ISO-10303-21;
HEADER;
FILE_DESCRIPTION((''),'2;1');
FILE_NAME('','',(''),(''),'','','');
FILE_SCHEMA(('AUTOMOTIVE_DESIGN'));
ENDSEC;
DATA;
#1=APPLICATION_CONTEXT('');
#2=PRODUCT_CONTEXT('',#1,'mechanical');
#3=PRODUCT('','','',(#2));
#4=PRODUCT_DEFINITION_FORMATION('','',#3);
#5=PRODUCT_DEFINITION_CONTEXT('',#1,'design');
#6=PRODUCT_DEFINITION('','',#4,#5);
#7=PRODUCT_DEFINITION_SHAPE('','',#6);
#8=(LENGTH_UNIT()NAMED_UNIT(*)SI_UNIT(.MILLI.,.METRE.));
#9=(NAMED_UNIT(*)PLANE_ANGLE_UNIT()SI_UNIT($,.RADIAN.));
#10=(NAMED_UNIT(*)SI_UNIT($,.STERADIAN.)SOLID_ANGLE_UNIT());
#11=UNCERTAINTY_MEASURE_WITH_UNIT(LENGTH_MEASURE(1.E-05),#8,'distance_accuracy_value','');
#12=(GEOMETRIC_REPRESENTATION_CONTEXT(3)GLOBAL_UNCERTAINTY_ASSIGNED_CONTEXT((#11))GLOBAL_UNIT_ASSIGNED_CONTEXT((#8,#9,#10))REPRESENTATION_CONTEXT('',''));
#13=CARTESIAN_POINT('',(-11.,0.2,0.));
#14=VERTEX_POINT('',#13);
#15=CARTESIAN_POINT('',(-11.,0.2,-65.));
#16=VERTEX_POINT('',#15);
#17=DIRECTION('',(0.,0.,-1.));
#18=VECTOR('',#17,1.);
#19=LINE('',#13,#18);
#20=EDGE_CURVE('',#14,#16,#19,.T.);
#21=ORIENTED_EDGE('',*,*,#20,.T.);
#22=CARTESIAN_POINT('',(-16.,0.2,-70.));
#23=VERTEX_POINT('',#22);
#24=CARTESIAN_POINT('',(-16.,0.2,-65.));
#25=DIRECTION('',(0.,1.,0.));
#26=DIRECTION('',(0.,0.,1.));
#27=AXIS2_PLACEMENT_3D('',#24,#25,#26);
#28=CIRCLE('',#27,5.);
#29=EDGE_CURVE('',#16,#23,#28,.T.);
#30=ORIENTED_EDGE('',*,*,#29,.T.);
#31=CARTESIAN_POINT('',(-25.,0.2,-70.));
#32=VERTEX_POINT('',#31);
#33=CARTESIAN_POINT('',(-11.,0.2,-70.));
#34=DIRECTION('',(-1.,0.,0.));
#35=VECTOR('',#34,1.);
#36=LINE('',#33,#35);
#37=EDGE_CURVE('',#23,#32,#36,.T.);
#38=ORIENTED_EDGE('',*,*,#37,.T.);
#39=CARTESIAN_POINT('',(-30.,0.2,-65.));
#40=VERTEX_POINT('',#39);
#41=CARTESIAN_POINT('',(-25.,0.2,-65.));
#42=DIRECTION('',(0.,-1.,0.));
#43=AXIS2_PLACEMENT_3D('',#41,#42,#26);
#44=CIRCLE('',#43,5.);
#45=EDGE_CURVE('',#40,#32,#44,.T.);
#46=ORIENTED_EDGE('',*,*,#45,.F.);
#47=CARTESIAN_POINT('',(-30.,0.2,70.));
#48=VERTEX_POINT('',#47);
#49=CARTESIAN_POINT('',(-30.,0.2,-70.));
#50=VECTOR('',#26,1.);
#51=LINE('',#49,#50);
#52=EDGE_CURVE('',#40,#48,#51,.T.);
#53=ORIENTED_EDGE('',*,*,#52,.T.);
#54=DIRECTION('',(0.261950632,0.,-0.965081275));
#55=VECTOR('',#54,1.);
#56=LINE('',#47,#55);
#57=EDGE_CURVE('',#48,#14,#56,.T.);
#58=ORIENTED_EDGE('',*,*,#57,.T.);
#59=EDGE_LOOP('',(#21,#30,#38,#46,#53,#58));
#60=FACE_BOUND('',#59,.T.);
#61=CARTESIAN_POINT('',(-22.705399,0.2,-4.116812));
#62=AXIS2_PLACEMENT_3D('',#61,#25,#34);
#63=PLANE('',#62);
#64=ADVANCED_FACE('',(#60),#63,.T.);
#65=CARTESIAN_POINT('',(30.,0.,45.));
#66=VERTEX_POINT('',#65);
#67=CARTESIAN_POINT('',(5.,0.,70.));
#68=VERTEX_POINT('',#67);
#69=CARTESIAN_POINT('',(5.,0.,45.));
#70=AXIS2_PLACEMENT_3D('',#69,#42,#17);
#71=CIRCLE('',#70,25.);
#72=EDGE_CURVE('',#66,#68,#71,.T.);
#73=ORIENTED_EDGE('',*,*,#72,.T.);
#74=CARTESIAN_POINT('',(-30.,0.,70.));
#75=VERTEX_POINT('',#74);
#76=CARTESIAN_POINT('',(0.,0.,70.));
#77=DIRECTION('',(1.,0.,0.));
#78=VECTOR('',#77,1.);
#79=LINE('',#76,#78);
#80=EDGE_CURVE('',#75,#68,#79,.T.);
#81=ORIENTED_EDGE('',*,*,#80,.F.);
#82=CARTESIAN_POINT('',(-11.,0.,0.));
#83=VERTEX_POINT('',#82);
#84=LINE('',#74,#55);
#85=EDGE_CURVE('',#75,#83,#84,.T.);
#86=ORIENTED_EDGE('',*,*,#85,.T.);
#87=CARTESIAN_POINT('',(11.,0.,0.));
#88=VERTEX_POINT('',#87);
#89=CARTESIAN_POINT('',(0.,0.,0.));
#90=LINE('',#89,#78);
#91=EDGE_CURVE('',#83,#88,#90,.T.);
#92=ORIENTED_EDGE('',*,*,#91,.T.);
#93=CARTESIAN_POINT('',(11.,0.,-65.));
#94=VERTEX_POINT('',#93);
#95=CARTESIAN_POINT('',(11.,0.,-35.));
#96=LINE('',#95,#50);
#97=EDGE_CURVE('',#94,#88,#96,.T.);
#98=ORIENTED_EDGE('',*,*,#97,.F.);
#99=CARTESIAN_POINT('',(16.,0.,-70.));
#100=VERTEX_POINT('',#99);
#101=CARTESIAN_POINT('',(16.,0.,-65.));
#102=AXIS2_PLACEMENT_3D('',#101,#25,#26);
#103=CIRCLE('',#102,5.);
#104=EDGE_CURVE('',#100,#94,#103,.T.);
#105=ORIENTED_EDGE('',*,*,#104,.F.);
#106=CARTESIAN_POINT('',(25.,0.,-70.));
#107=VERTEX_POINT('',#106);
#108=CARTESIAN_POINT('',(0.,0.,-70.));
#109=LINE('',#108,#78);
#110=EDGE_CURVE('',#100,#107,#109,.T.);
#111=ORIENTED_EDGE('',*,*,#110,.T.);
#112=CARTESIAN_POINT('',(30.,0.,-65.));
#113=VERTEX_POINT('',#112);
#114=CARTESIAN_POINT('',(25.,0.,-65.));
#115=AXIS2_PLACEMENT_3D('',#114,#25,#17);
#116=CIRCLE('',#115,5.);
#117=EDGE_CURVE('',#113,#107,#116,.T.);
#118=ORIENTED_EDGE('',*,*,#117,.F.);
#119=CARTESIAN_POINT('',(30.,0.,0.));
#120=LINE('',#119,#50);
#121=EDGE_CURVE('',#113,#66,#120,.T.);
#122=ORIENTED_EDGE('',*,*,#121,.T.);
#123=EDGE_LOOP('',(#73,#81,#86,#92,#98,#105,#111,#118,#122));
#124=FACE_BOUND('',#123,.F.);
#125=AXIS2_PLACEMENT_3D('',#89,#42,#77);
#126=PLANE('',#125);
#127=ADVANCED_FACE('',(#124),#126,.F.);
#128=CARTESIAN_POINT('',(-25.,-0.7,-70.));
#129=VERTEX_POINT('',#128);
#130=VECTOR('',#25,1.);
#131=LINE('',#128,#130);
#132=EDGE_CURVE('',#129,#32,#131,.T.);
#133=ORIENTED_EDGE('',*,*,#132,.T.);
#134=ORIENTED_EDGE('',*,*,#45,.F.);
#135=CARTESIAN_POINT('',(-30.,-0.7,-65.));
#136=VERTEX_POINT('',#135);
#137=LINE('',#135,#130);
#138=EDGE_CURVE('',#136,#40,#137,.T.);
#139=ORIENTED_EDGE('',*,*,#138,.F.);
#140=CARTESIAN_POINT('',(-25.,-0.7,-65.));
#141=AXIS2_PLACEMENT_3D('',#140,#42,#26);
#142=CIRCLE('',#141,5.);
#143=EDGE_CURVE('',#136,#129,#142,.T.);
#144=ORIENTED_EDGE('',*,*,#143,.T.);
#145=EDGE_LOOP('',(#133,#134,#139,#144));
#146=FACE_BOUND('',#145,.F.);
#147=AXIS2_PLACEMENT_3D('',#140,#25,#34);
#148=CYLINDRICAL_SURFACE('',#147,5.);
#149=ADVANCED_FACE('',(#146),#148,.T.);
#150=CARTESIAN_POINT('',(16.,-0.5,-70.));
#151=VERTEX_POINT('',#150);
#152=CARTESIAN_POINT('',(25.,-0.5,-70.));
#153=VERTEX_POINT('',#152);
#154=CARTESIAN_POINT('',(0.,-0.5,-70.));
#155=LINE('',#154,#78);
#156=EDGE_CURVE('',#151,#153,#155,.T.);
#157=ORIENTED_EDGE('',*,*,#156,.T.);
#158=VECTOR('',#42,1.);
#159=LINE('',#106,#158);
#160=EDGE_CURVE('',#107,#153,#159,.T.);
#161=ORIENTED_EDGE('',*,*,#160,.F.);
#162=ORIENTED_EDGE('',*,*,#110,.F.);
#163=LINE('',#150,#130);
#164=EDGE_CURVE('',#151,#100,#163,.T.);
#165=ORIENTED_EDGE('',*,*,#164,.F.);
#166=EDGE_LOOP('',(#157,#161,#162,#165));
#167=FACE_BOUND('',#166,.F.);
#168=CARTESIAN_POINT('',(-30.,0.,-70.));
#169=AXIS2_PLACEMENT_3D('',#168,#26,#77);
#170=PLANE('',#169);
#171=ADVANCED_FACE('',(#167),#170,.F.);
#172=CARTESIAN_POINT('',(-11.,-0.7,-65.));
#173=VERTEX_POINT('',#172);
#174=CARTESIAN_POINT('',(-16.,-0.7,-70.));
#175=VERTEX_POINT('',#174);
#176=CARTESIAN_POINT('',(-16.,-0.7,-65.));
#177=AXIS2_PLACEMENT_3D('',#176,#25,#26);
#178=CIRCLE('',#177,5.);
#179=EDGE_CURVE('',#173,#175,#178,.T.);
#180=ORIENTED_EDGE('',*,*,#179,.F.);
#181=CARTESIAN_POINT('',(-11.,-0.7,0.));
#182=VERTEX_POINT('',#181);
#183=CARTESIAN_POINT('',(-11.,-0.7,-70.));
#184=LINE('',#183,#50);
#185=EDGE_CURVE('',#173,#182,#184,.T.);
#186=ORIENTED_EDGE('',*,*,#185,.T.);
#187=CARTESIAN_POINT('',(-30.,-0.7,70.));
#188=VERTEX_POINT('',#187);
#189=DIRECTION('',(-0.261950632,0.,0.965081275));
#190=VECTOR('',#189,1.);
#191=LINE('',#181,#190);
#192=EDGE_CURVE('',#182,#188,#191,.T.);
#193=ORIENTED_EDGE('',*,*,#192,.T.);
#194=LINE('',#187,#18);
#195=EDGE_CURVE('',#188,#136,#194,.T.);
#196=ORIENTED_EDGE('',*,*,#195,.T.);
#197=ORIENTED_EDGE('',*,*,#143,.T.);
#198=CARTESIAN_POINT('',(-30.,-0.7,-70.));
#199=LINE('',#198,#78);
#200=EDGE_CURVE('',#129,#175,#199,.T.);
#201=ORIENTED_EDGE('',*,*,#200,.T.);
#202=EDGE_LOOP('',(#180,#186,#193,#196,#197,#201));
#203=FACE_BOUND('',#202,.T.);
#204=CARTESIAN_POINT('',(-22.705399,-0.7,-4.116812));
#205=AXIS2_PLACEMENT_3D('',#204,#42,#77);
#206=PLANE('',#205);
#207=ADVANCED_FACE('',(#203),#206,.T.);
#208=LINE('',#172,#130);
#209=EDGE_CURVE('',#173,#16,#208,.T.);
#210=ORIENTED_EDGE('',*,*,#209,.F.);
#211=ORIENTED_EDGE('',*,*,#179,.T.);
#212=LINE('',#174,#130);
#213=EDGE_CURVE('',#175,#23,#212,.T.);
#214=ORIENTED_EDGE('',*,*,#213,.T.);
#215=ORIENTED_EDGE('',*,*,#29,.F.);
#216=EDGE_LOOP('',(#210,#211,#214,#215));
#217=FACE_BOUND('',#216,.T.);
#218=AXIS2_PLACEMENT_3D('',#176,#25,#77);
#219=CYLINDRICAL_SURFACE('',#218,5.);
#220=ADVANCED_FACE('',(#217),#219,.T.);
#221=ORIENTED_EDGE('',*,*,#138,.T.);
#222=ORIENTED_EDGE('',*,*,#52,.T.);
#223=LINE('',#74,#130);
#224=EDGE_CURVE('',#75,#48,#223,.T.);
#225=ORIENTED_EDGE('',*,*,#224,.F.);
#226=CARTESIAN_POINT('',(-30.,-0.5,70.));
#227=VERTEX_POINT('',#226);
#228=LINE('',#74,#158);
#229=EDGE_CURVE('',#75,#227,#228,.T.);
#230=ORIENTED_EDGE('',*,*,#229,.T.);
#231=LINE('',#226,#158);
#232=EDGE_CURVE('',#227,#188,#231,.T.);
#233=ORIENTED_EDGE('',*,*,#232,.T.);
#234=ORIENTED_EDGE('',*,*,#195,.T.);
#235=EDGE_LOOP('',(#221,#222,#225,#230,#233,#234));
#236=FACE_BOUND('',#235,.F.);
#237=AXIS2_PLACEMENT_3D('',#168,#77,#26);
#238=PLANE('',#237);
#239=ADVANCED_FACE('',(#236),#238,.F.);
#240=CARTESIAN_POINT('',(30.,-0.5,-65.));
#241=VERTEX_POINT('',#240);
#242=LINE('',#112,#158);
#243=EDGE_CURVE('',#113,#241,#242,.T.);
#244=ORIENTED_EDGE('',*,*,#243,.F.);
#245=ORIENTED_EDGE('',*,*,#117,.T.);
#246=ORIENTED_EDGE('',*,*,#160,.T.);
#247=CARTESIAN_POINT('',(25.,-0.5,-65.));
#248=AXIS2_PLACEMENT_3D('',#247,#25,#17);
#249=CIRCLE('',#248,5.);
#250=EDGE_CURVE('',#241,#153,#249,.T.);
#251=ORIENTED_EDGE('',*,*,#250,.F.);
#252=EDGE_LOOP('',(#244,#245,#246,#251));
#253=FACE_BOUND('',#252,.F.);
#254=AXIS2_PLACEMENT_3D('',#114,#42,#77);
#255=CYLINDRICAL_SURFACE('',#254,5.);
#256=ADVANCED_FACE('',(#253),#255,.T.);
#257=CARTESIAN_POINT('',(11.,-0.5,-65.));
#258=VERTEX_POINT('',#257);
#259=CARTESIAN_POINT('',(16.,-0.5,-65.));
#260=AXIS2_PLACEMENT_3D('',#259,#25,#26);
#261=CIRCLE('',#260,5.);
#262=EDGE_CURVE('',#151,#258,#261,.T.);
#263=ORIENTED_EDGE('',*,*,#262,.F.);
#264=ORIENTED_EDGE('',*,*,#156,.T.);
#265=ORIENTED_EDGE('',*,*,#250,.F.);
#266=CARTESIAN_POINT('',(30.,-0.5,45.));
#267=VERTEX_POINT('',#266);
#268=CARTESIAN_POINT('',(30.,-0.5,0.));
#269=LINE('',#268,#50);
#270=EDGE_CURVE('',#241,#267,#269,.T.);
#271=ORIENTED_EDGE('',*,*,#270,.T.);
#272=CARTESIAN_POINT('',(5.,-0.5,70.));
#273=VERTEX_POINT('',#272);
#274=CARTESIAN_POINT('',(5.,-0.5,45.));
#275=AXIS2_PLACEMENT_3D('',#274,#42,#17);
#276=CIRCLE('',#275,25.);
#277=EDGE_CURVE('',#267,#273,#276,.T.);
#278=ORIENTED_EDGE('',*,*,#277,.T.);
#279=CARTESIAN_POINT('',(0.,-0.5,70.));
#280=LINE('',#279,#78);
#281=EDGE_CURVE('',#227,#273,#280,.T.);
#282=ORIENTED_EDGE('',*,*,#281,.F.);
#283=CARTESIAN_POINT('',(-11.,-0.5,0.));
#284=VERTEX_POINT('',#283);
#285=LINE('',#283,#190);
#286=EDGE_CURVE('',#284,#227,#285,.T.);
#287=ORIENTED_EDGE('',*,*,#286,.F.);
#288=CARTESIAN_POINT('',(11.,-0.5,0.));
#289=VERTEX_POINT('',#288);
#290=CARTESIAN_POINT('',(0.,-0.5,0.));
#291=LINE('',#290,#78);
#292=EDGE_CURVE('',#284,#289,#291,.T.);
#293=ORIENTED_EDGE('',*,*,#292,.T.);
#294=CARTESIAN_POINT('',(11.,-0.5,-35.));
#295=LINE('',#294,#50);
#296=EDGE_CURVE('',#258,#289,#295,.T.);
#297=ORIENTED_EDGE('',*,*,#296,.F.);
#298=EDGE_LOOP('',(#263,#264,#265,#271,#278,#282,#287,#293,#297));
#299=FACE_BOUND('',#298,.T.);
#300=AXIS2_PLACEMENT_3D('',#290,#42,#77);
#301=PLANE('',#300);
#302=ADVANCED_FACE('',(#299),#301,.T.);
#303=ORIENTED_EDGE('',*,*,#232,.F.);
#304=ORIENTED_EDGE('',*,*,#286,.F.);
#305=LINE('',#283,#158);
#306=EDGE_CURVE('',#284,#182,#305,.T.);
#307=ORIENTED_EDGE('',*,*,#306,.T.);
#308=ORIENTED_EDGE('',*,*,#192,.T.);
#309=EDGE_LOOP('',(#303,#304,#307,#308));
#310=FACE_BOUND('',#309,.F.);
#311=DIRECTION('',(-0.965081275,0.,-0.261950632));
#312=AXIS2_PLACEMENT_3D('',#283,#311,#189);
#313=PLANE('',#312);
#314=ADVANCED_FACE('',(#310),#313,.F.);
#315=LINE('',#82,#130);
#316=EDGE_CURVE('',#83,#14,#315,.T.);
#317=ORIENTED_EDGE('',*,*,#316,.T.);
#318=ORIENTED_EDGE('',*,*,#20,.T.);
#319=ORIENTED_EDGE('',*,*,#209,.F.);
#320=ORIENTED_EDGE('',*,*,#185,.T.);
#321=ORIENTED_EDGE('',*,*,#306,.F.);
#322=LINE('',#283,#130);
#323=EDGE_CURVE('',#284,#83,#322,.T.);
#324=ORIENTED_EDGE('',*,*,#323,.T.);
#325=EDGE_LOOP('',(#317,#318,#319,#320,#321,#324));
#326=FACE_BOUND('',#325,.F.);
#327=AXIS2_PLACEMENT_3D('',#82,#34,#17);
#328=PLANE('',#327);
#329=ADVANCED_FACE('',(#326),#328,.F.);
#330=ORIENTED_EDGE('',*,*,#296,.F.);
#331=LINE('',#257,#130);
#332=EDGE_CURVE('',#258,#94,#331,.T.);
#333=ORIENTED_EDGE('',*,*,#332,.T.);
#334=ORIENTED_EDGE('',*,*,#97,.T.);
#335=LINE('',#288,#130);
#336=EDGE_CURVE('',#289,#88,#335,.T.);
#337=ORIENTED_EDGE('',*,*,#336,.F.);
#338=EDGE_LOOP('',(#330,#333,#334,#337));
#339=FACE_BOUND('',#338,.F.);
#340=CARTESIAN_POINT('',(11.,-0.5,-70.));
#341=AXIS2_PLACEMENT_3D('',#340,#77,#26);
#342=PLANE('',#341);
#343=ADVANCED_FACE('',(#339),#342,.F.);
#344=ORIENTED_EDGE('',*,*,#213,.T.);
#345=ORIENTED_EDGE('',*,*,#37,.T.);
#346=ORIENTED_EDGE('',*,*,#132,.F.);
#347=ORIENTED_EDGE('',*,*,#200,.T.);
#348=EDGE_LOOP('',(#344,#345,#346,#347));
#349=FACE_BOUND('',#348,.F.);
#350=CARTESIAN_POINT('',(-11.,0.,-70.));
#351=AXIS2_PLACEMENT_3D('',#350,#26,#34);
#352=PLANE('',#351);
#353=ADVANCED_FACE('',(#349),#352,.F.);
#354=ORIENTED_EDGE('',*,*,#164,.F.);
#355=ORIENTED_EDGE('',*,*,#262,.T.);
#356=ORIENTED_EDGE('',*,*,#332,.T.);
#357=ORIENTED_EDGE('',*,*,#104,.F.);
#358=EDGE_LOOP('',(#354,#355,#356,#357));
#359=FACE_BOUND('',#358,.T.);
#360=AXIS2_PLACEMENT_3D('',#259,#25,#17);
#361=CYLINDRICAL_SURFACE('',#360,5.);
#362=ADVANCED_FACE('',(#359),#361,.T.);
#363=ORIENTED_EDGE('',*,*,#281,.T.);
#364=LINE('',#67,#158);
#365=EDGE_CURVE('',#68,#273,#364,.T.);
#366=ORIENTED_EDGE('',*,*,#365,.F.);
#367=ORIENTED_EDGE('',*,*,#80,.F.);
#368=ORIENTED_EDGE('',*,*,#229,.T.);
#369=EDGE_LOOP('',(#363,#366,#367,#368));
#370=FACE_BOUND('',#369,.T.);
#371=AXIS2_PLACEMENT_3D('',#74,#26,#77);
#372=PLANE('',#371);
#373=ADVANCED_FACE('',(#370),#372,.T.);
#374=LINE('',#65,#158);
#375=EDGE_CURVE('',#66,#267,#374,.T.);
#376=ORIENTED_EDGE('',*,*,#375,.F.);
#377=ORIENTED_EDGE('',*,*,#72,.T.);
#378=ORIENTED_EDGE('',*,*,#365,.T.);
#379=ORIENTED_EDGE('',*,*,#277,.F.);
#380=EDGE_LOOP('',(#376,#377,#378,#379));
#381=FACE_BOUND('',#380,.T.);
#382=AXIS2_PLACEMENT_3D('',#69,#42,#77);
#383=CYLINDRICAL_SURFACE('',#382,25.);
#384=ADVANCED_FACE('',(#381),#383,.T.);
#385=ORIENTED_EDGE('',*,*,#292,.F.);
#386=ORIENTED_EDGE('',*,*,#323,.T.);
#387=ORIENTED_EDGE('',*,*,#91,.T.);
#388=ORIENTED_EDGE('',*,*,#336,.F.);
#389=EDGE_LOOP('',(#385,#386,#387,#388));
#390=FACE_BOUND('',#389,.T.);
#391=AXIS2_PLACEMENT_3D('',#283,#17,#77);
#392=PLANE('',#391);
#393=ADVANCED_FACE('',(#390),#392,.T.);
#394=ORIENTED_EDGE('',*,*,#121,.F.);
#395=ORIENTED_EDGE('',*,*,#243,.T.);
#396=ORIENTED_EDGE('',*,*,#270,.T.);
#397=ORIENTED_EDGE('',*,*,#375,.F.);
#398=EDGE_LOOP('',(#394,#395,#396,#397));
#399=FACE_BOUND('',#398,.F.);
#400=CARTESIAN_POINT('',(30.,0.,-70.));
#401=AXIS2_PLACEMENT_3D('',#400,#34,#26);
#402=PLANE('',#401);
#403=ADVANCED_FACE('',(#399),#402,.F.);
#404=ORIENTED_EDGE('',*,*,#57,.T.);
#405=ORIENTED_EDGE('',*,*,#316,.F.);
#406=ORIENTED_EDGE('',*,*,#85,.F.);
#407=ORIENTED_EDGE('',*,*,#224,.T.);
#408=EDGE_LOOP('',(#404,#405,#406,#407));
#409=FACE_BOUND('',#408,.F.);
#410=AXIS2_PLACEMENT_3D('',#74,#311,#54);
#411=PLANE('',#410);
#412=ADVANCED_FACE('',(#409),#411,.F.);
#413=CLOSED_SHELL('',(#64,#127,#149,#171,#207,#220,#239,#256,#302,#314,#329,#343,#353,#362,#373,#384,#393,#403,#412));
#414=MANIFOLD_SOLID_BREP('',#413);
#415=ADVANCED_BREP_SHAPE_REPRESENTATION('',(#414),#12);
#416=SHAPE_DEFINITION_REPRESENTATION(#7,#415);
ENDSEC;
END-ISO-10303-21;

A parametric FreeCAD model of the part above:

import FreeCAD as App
import Part
import Sketcher

V = App.Vector


def edges_at(feature, points):
    """Names of the edges that pass closest to the given points."""
    edges = feature.Shape.Edges
    near = lambda p: min(range(len(edges)), key=lambda i: edges[i].distToShape(Part.Vertex(*p))[0])
    return sorted({f"Edge{near(p) + 1}" for p in points})


def add_polygon(sketch, points):
    """Adds a closed chain of lines whose ends are joined by coincident constraints."""
    first, n = sketch.GeometryCount, len(points)
    for a, b in zip(points, points[1:] + points[:1]):
        sketch.addGeometry(Part.LineSegment(App.Vector(*a, 0), App.Vector(*b, 0)), False)
    for i in range(n):
        sketch.addConstraint(Sketcher.Constraint("Coincident", first + i, 2, first + (i + 1) % n, 1))

doc = App.newDocument("Part")
params = doc.addObject("Spreadsheet::Sheet", "Params")
for row, (alias, value) in enumerate([
    ("sketch1_width", "60 mm"),
    ("sketch1_height", "140 mm"),
    ("pad1_length", "0.5 mm"),
    ("sketch2_width", "22 mm"),
    ("sketch2_height", "70 mm"),
    ("sketch3_width", "19 mm"),
    ("sketch3_height", "140 mm"),
    ("sketch3_height2", "70 mm"),
    ("pad2_length", "0.2 mm"),
    ("sketch4_width", "19 mm"),
    ("sketch4_height", "70 mm"),
    ("sketch4_height2", "140 mm"),
    ("pad3_length", "0.2 mm"),
    ("fillet_radius", "25 mm"),
    ("fillet2_radius", "5 mm"),
], start=1):
    params.set(f"A{row}", alias)
    params.set(f"B{row}", "=" + value)
    params.setAlias(f"B{row}", alias)

body = doc.addObject("PartDesign::Body", "Body")

sketch1 = doc.addObject("Sketcher::SketchObject", "Sketch")
body.addObject(sketch1)
sketch1.AttachmentSupport = (doc.XZ_Plane, [""])
sketch1.MapMode = "FlatFace"
add_polygon(sketch1, [(-30, 70), (-30, -70), (30, -70), (30, 70)])
sketch1.addConstraint(Sketcher.Constraint("Vertical", 0))
sketch1.addConstraint(Sketcher.Constraint("Horizontal", 1))
sketch1.addConstraint(Sketcher.Constraint("Vertical", 2))
sketch1.addConstraint(Sketcher.Constraint("Horizontal", 3))
sketch1.addConstraint(Sketcher.Constraint("Symmetric", 0, 2, 2, 2, -1, 1))
sketch1.addConstraint(Sketcher.Constraint("DistanceX", 1, 1, 1, 2, 60.0))
sketch1.addConstraint(Sketcher.Constraint("DistanceY", 0, 2, 0, 1, 140.0))
sketch1.setExpression("Constraints[9]", "Params.sketch1_width")
sketch1.setExpression("Constraints[10]", "Params.sketch1_height")
pad1 = doc.addObject("PartDesign::Pad", "Pad")
body.addObject(pad1)
pad1.Profile = sketch1
pad1.setExpression("Length", "Params.pad1_length")

sketch2 = doc.addObject("Sketcher::SketchObject", "Sketch001")
body.addObject(sketch2)
sketch2.AttachmentSupport = (doc.XZ_Plane, [""])
sketch2.MapMode = "FlatFace"
sketch2.AttachmentOffset = App.Placement(V(0, 0, 0.5), App.Rotation())
add_polygon(sketch2, [(-11, 0), (-11, -70), (11, -70), (11, 0)])
sketch2.addConstraint(Sketcher.Constraint("Vertical", 0))
sketch2.addConstraint(Sketcher.Constraint("Horizontal", 1))
sketch2.addConstraint(Sketcher.Constraint("Vertical", 2))
sketch2.addConstraint(Sketcher.Constraint("Horizontal", 3))
sketch2.addConstraint(Sketcher.Constraint("Symmetric", 2, 2, 3, 2, -1, 1))
sketch2.addConstraint(Sketcher.Constraint("DistanceX", 1, 1, 1, 2, 22.0))
sketch2.addConstraint(Sketcher.Constraint("DistanceY", 0, 2, 0, 1, 70.0))
sketch2.setExpression("Constraints[9]", "Params.sketch2_width")
sketch2.setExpression("Constraints[10]", "Params.sketch2_height")
pocket1 = doc.addObject("PartDesign::Pocket", "Pocket")
body.addObject(pocket1)
pocket1.Profile = sketch2
pocket1.Type = "ThroughAll"

sketch3 = doc.addObject("Sketcher::SketchObject", "Sketch002")
body.addObject(sketch3)
sketch3.AttachmentSupport = (doc.XZ_Plane, [""])
sketch3.MapMode = "FlatFace"
sketch3.AttachmentOffset = App.Placement(V(0, 0, 0.5), App.Rotation())
add_polygon(sketch3, [(-30, 70), (-30, -70), (-11, -70), (-11, 0)])
sketch3.addConstraint(Sketcher.Constraint("Vertical", 0))
sketch3.addConstraint(Sketcher.Constraint("Horizontal", 1))
sketch3.addConstraint(Sketcher.Constraint("Vertical", 2))
sketch3.addConstraint(Sketcher.Constraint("PointOnObject", 2, 2, -1))
sketch3.addConstraint(Sketcher.Constraint("DistanceX", 1, 1, 1, 2, 19.0))
sketch3.addConstraint(Sketcher.Constraint("DistanceY", 0, 2, 0, 1, 140.0))
sketch3.addConstraint(Sketcher.Constraint("DistanceY", 2, 1, 2, 2, 70.0))
sketch3.addConstraint(Sketcher.Constraint("DistanceX", 0, 2, -1, 1, 30.0))
sketch3.setExpression("Constraints[8]", "Params.sketch3_width")
sketch3.setExpression("Constraints[9]", "Params.sketch3_height")
sketch3.setExpression("Constraints[10]", "Params.sketch3_height2")
pad2 = doc.addObject("PartDesign::Pad", "Pad001")
body.addObject(pad2)
pad2.Profile = sketch3
pad2.setExpression("Length", "Params.pad2_length")

sketch4 = doc.addObject("Sketcher::SketchObject", "Sketch003")
body.addObject(sketch4)
sketch4.AttachmentSupport = (doc.XZ_Plane, [""])
sketch4.MapMode = "FlatFace"
add_polygon(sketch4, [(-11, 0), (-11, -70), (-30, -70), (-30, 70)])
sketch4.addConstraint(Sketcher.Constraint("Vertical", 0))
sketch4.addConstraint(Sketcher.Constraint("Horizontal", 1))
sketch4.addConstraint(Sketcher.Constraint("Vertical", 2))
sketch4.addConstraint(Sketcher.Constraint("PointOnObject", 3, 2, -1))
sketch4.addConstraint(Sketcher.Constraint("DistanceX", 1, 2, 1, 1, 19.0))
sketch4.addConstraint(Sketcher.Constraint("DistanceY", 0, 2, 0, 1, 70.0))
sketch4.addConstraint(Sketcher.Constraint("DistanceY", 2, 1, 2, 2, 140.0))
sketch4.addConstraint(Sketcher.Constraint("DistanceX", 0, 2, -1, 1, 11.0))
sketch4.setExpression("Constraints[8]", "Params.sketch4_width")
sketch4.setExpression("Constraints[9]", "Params.sketch4_height")
sketch4.setExpression("Constraints[10]", "Params.sketch4_height2")
pad3 = doc.addObject("PartDesign::Pad", "Pad002")
body.addObject(pad3)
pad3.Profile = sketch4
pad3.setExpression("Length", "Params.pad3_length")
pad3.Reversed = True
doc.recompute()

fillet = doc.addObject("PartDesign::Fillet", "Fillet")
body.addObject(fillet)
fillet.Base = (pad3, edges_at(pad3, [(30, -0.25, 70)]))
fillet.setExpression("Radius", "Params.fillet_radius")
doc.recompute()

fillet2 = doc.addObject("PartDesign::Fillet", "Fillet001")
body.addObject(fillet2)
fillet2.Base = (fillet, edges_at(fillet, [
    (-30, -0.25, -70),
    (-11, -0.25, -70),
    (11, -0.25, -70),
    (30, -0.25, -70),
]))
fillet2.setExpression("Radius", "Params.fillet2_radius")

doc.recompute()
